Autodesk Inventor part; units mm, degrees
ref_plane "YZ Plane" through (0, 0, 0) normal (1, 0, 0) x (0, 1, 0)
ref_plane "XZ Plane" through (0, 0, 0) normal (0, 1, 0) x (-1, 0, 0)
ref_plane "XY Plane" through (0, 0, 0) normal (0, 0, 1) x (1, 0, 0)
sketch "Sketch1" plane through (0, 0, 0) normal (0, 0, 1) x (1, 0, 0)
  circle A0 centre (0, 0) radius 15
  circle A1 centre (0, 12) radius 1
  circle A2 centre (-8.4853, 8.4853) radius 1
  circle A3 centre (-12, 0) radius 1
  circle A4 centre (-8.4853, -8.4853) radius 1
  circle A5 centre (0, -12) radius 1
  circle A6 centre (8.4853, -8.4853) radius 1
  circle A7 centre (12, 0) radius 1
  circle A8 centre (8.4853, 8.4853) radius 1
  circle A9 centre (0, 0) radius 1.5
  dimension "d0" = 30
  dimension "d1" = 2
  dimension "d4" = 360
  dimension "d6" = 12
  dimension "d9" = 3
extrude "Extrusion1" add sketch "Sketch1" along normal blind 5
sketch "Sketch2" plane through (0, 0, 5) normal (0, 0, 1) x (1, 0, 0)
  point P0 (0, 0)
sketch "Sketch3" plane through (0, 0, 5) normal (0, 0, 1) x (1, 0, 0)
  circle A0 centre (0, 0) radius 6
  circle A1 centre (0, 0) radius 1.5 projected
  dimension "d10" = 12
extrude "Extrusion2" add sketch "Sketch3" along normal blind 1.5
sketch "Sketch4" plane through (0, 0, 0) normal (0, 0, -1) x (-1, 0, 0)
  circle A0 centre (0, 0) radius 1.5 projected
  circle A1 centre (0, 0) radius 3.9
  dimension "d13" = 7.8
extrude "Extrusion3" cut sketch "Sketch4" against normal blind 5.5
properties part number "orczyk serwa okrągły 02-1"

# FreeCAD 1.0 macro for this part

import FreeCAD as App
import Part
import Sketcher
from FreeCAD import Vector

doc = App.newDocument("Part")
body = doc.addObject("PartDesign::Body", "Body")

# Sketch on XY plane
sketch1 = body.newObject("Sketcher::SketchObject", "Sketch")
sketch1.AttachmentSupport = (doc.getObject("XY_Plane"), [""])
sketch1.MapMode = "FlatFace"
sketch1.addGeometry([
    Part.Circle(Vector(0, 0, 0), Vector(0, 0, 1), 15),  # 0
    Part.Circle(Vector(-8.4853, -8.4853, 0), Vector(0, 0, 1), 1),  # 1
    Part.Circle(Vector(0, -12, 0), Vector(0, 0, 1), 1),  # 2
    Part.Circle(Vector(8.4853, -8.4853, 0), Vector(0, 0, 1), 1),  # 3
    Part.Circle(Vector(-12, 0, 0), Vector(0, 0, 1), 1),  # 4
    Part.Circle(Vector(-8.4853, 8.4853, 0), Vector(0, 0, 1), 1),  # 5
    Part.Circle(Vector(0, 0, 0), Vector(0, 0, 1), 1.5),  # 6
    Part.Circle(Vector(12, 0, 0), Vector(0, 0, 1), 1),  # 7
    Part.Circle(Vector(0, 12, 0), Vector(0, 0, 1), 1),  # 8
    Part.Circle(Vector(8.4853, 8.4853, 0), Vector(0, 0, 1), 1),  # 9
], False)
sketch1.addConstraint([
    Sketcher.Constraint("Coincident", 0, 3, -1, 1),
    Sketcher.Constraint("Coincident", 6, 3, -1, 1),
    Sketcher.Constraint("Equal", 1, 2),
    Sketcher.Constraint("Equal", 2, 3),
    Sketcher.Constraint("Equal", 3, 4),
    Sketcher.Constraint("Equal", 4, 5),
    Sketcher.Constraint("Equal", 5, 7),
    Sketcher.Constraint("Equal", 7, 8),
    Sketcher.Constraint("Equal", 8, 9),
    Sketcher.Constraint("Symmetric", 3, 3, 5, 3, -1, 1),
    Sketcher.Constraint("Symmetric", 4, 3, 7, 3, -1, 1),
    Sketcher.Constraint("Symmetric", 2, 3, 8, 3, -1, 1),
    Sketcher.Constraint("Symmetric", 1, 3, 9, 3, -1, 1),
    Sketcher.Constraint("Symmetric", 1, 3, 3, 3, -2),
    Sketcher.Constraint("PointOnObject", 2, 3, -2),
    Sketcher.Constraint("PointOnObject", 4, 3, -1),
    Sketcher.Constraint("Diameter", 0, 30.0),
    Sketcher.Constraint("Diameter", 1, 2.0),
    Sketcher.Constraint("Diameter", 6, 3.0),
    Sketcher.Constraint("DistanceY", 2, 3, -1, 1, 12.0),
    Sketcher.Constraint("DistanceX", 4, 3, -1, 1, 12.0),
    Sketcher.Constraint("DistanceX", 1, 3, -1, 1, 8.4853),
    Sketcher.Constraint("DistanceY", 1, 3, -1, 1, 8.4853),
])
pad1 = body.newObject("PartDesign::Pad", "Pad")
pad1.Profile = sketch1
pad1.Length = 5

# Sketch on XY plane
sketch2 = body.newObject("Sketcher::SketchObject", "Sketch001")
sketch2.AttachmentSupport = (doc.getObject("XY_Plane"), [""])
sketch2.MapMode = "FlatFace"
sketch2.AttachmentOffset = App.Placement(Vector(0, 0, 5), App.Rotation())
sketch2.addGeometry([
    Part.Circle(Vector(0, 0, 0), Vector(0, 0, 1), 6),
    Part.Circle(Vector(0, 0, 0), Vector(0, 0, 1), 1.5),
], False)
sketch2.addConstraint([
    Sketcher.Constraint("Coincident", 0, 3, -1, 1),
    Sketcher.Constraint("Coincident", 1, 3, -1, 1),
    Sketcher.Constraint("Diameter", 0, 12.0),
    Sketcher.Constraint("Diameter", 1, 3.0),
])
pad2 = body.newObject("PartDesign::Pad", "Pad001")
pad2.Profile = sketch2
pad2.Length = 1.5

# Sketch on XY plane
sketch3 = body.newObject("Sketcher::SketchObject", "Sketch002")
sketch3.AttachmentSupport = (doc.getObject("XY_Plane"), [""])
sketch3.MapMode = "FlatFace"
sketch3.addGeometry([
    Part.Circle(Vector(0, 0, 0), Vector(0, 0, 1), 3.9),
    Part.Circle(Vector(0, 0, 0), Vector(0, 0, 1), 1.5),
], False)
sketch3.addConstraint([
    Sketcher.Constraint("Coincident", 0, 3, -1, 1),
    Sketcher.Constraint("Coincident", 1, 3, -1, 1),
    Sketcher.Constraint("Diameter", 0, 7.8),
    Sketcher.Constraint("Diameter", 1, 3.0),
])
pocket1 = body.newObject("PartDesign::Pocket", "Pocket")
pocket1.Profile = sketch3
pocket1.Length = 5.5
pocket1.Reversed = True

doc.recompute()
